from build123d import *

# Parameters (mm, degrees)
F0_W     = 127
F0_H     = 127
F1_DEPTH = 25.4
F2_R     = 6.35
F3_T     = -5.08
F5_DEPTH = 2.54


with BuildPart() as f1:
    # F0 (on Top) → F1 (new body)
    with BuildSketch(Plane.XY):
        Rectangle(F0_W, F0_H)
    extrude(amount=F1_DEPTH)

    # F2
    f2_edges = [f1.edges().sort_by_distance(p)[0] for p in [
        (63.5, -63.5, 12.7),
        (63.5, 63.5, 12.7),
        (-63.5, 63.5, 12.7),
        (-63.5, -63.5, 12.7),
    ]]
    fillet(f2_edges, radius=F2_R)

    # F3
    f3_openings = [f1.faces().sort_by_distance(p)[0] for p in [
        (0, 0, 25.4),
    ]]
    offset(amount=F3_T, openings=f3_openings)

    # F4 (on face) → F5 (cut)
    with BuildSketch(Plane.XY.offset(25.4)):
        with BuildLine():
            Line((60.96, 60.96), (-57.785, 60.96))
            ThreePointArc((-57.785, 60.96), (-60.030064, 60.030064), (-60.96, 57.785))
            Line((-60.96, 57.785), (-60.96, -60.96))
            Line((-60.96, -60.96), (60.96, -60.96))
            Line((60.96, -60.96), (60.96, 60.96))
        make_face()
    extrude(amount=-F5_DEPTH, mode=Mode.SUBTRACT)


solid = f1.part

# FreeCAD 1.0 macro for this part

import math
import FreeCAD as App
import Part
import Sketcher

V = App.Vector
Q = App.Units.Quantity


def edges_at(feature, points):
    """Names of the edges that pass closest to the given points."""
    edges = feature.Shape.Edges
    near = lambda p: min(range(len(edges)), key=lambda i: edges[i].distToShape(Part.Vertex(*p))[0])
    return sorted({f"Edge{near(p) + 1}" for p in points})


def faces_at(feature, points):
    """Names of the faces that lie closest to the given points."""
    faces = feature.Shape.Faces
    near = lambda p: min(range(len(faces)), key=lambda i: faces[i].distToShape(Part.Vertex(*p))[0])
    return sorted({f"Face{near(p) + 1}" for p in points})


def add_polygon(sketch, points):
    """Adds a closed chain of lines whose ends are joined by coincident constraints."""
    first, n = sketch.GeometryCount, len(points)
    for a, b in zip(points, points[1:] + points[:1]):
        sketch.addGeometry(Part.LineSegment(App.Vector(*a, 0), App.Vector(*b, 0)), False)
    for i in range(n):
        sketch.addConstraint(Sketcher.Constraint("Coincident", first + i, 2, first + (i + 1) % n, 1))

doc = App.newDocument("Part")
body = doc.addObject("PartDesign::Body", "Body")

sketch1 = body.newObject("Sketcher::SketchObject", "Sketch")
sketch1.AttachmentSupport = (doc.getObject("XY_Plane"), [""])
sketch1.MapMode = "FlatFace"
add_polygon(sketch1, [(-63.5, 63.5), (-63.5, -63.5), (63.5, -63.5), (63.5, 63.5)])
sketch1.addConstraint([
    Sketcher.Constraint("Vertical", 0),
    Sketcher.Constraint("Horizontal", 1),
    Sketcher.Constraint("Vertical", 2),
    Sketcher.Constraint("Horizontal", 3),
    Sketcher.Constraint("Symmetric", 0, 2, 2, 2, -1, 1),
    Sketcher.Constraint("Equal", 3, 0),
    Sketcher.Constraint("DistanceX", 1, 1, 1, 2, Q("5 in")),
])
pad1 = body.newObject("PartDesign::Pad", "Pad")
pad1.Profile = sketch1
pad1.Length = Q("1 in")
doc.recompute()

fillet = body.newObject("PartDesign::Fillet", "Fillet")
fillet.Base = (pad1, edges_at(pad1, [
    (63.5, -63.5, 12.7),
    (63.5, 63.5, 12.7),
    (-63.5, 63.5, 12.7),
    (-63.5, -63.5, 12.7),
]))
fillet.Radius = Q("0.25 in")
doc.recompute()

thickness = body.newObject("PartDesign::Thickness", "Thickness")
thickness.Base = (fillet, faces_at(fillet, [(0, 0, 25.4)]))
thickness.Value = Q("0.2 in")
thickness.Reversed = True
thickness.Join = "Arc"

sketch2 = body.newObject("Sketcher::SketchObject", "Sketch001")
sketch2.AttachmentSupport = (doc.getObject("XY_Plane"), [""])
sketch2.MapMode = "FlatFace"
sketch2.AttachmentOffset = App.Placement(V(0, 0, 1 * 25.4), App.Rotation())
sketch2.addGeometry([
    Part.LineSegment(V(60.96, 60.96, 0), V(-57.785, 60.96, 0)),
    Part.ArcOfCircle(Part.Circle(V(-57.785, 57.785, 0), V(0, 0, 1), 3.175), math.radians(90.000002), math.radians(179.999998)),
    Part.LineSegment(V(-60.96, 57.785, 0), V(-60.96, -60.96, 0)),
    Part.LineSegment(V(-60.96, -60.96, 0), V(60.96, -60.96, 0)),
    Part.LineSegment(V(60.96, -60.96, 0), V(60.96, 60.96, 0)),
], False)
sketch2.addConstraint([
    Sketcher.Constraint("Tangent", 0, 2, 1, 1),
    Sketcher.Constraint("Tangent", 1, 2, 2, 1),
    Sketcher.Constraint("Coincident", 2, 2, 3, 1),
    Sketcher.Constraint("Coincident", 3, 2, 4, 1),
    Sketcher.Constraint("Coincident", 4, 2, 0, 1),
    Sketcher.Constraint("Horizontal", 0),
    Sketcher.Constraint("Vertical", 2),
    Sketcher.Constraint("Horizontal", 3),
    Sketcher.Constraint("Vertical", 4),
    Sketcher.Constraint("Symmetric", 2, 2, 4, 2, -1, 1),
    Sketcher.Constraint("Equal", 0, 2),
    Sketcher.Constraint("DistanceX", 3, 1, 3, 2, Q("4.8 in")),
    Sketcher.Constraint("Radius", 1, Q("0.125 in")),
])
pocket1 = body.newObject("PartDesign::Pocket", "Pocket")
pocket1.Profile = sketch2
pocket1.Length = Q("0.1 in")

doc.recompute()
